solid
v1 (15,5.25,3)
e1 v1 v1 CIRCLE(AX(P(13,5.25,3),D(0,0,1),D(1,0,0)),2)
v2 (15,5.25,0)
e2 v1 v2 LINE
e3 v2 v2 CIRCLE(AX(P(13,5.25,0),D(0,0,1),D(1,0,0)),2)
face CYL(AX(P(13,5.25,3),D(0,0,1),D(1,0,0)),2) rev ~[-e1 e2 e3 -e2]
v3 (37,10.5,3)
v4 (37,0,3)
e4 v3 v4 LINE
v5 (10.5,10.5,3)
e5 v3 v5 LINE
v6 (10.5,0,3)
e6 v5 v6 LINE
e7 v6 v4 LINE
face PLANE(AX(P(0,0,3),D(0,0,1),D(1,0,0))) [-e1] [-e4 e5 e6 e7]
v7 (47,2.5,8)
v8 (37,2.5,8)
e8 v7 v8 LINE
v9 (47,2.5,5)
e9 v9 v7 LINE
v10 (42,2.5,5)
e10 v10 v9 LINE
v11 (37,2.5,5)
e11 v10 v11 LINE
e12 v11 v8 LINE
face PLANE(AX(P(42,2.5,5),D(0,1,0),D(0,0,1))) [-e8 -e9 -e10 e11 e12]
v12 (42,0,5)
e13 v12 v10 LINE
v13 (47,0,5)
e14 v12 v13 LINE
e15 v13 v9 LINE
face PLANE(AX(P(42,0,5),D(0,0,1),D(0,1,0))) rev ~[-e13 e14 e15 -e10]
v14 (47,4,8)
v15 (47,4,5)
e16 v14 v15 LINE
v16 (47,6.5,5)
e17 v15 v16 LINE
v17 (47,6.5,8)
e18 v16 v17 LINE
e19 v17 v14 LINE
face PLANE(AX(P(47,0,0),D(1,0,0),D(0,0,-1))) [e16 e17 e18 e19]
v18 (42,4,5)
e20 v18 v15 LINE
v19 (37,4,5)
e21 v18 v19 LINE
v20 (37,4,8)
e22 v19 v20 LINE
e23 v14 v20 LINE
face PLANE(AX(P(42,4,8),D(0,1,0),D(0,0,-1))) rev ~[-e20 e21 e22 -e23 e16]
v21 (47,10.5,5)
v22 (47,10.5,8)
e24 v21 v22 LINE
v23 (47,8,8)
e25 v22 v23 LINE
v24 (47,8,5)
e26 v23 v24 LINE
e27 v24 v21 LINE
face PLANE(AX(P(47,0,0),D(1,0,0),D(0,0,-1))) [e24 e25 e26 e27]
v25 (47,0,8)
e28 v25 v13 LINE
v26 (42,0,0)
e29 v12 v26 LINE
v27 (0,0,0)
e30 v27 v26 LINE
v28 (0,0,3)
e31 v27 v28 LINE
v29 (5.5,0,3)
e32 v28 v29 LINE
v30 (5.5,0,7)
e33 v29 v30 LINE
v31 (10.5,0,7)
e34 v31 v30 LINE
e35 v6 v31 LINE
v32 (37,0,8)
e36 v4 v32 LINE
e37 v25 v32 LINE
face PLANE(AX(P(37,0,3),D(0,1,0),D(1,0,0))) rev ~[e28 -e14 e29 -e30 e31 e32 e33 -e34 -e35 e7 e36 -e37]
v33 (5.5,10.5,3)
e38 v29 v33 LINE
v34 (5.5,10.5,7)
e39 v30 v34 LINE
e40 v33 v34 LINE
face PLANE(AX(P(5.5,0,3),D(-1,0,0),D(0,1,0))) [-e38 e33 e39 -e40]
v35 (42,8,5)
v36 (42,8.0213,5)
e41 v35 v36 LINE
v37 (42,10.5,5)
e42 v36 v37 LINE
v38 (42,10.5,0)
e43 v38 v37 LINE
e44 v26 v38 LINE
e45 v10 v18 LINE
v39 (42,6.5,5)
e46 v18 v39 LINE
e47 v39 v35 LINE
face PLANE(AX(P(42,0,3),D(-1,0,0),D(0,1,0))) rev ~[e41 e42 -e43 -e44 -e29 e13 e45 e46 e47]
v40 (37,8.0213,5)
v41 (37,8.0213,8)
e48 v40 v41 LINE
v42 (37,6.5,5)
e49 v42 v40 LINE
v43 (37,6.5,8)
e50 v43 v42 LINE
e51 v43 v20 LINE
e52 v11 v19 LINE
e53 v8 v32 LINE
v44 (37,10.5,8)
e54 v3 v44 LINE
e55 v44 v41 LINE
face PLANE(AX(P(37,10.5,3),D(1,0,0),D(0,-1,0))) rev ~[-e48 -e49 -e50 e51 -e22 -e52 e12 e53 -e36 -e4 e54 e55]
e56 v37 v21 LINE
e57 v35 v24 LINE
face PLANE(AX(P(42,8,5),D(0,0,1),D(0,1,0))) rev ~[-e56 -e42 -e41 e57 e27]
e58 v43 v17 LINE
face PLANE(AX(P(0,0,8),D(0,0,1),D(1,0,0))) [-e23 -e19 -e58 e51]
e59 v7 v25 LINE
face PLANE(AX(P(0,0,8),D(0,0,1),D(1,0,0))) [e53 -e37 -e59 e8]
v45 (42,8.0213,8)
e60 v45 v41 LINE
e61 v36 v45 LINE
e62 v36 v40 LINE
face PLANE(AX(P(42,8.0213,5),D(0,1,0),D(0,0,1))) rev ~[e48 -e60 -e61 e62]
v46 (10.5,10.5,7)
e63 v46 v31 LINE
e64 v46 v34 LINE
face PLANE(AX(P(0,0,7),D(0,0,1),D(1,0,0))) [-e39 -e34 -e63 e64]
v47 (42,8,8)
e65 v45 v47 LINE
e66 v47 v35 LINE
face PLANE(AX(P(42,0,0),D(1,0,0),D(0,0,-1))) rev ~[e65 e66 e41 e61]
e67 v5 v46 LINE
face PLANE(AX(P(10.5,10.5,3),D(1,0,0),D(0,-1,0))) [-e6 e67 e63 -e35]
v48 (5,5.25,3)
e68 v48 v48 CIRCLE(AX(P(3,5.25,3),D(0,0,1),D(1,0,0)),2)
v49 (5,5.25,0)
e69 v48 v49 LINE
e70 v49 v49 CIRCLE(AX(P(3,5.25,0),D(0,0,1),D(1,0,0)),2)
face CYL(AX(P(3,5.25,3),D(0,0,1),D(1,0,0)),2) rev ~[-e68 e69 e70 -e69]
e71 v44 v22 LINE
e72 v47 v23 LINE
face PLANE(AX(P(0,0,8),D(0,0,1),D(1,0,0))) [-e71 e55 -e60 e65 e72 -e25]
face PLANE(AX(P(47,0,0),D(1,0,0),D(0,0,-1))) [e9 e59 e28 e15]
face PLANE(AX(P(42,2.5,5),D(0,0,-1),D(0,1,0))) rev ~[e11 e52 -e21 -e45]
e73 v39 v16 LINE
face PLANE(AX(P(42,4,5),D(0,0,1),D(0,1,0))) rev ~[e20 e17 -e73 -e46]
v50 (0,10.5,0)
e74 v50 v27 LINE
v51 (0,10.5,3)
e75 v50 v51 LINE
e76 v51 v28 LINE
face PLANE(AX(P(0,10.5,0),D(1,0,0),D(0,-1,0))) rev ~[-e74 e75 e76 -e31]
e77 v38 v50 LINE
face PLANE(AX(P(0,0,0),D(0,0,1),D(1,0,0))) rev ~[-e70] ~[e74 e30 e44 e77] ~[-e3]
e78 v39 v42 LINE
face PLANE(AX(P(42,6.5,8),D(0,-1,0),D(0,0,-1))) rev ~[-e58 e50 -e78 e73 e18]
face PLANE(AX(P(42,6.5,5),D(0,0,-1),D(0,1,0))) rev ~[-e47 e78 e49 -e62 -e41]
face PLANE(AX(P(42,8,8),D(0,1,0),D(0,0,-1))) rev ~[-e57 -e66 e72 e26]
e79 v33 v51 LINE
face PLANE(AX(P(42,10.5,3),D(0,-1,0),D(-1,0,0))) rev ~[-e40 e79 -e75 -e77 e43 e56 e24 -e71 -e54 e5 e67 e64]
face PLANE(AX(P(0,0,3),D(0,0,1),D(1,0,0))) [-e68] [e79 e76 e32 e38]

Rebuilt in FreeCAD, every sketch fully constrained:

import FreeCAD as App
import Part
import Sketcher
from FreeCAD import Vector
Q = App.Units.Quantity

doc = App.newDocument("Part")
body = doc.addObject("PartDesign::Body", "Body")

# Sketch on XY plane
sketch1 = doc.addObject("Sketcher::SketchObject", "Sketch")
body.addObject(sketch1)
sketch1.AttachmentSupport = (doc.XY_Plane, [""])
sketch1.MapMode = "FlatFace"
sketch1.addGeometry([
    Part.LineSegment(Vector(0, 10, 0), Vector(0, 0, 0)),
    Part.LineSegment(Vector(0, 0, 0), Vector(42, 0, 0)),
    Part.LineSegment(Vector(42, 0, 0), Vector(42, 10, 0)),
    Part.LineSegment(Vector(42, 10, 0), Vector(0, 10, 0)),
], False)
sketch1.addConstraint([
    Sketcher.Constraint("Coincident", 0, 2, 1, 1),
    Sketcher.Constraint("Coincident", 1, 2, 2, 1),
    Sketcher.Constraint("Coincident", 2, 2, 3, 1),
    Sketcher.Constraint("Coincident", 3, 2, 0, 1),
    Sketcher.Constraint("Vertical", 0),
    Sketcher.Constraint("Horizontal", 1),
    Sketcher.Constraint("Vertical", 2),
    Sketcher.Constraint("Horizontal", 3),
    Sketcher.Constraint("Coincident", 0, 2, -1, 1),
    Sketcher.Constraint("DistanceX", 1, 1, 1, 2, Q("42 mm")),
    Sketcher.Constraint("DistanceY", 0, 2, 0, 1, Q("10.5 mm")),
])
pad1 = doc.addObject("PartDesign::Pad", "Pad")
body.addObject(pad1)
pad1.Profile = sketch1
pad1.Length = 3

# Sketch on XY plane
sketch2 = doc.addObject("Sketcher::SketchObject", "Sketch001")
body.addObject(sketch2)
sketch2.AttachmentSupport = (doc.XY_Plane, [""])
sketch2.MapMode = "FlatFace"
sketch2.AttachmentOffset = App.Placement(Vector(0, 0, 3), App.Rotation())
sketch2.addGeometry([
    Part.Circle(Vector(3, 5.2, 0), Vector(0, 0, 1), 2),
    Part.Circle(Vector(13, 5.2, 0), Vector(0, 0, 1), 2),
], False)
sketch2.addConstraint([
    Sketcher.Constraint("Equal", 0, 1),
    Sketcher.Constraint("Horizontal", 0, 3, 1, 3),
    Sketcher.Constraint("Diameter", 0, Q("4 mm")),
    Sketcher.Constraint("DistanceX", -1, 1, 0, 3, Q("3 mm")),
    Sketcher.Constraint("DistanceX", 0, 3, 1, 3, Q("10 mm")),
    Sketcher.Constraint("DistanceY", -1, 1, 0, 3, Q("5.25 mm")),
])
pocket1 = doc.addObject("PartDesign::Pocket", "Pocket")
body.addObject(pocket1)
pocket1.Profile = sketch2
pocket1.Type = "ThroughAll"

# Sketch on XY plane
sketch3 = doc.addObject("Sketcher::SketchObject", "Sketch002")
body.addObject(sketch3)
sketch3.AttachmentSupport = (doc.XY_Plane, [""])
sketch3.MapMode = "FlatFace"
sketch3.AttachmentOffset = App.Placement(Vector(0, 0, 3), App.Rotation())
sketch3.addGeometry([
    Part.LineSegment(Vector(10, 0, 0), Vector(10, 10, 0)),
    Part.LineSegment(Vector(10, 10, 0), Vector(6, 10, 0)),
    Part.LineSegment(Vector(6, 10, 0), Vector(6, 0, 0)),
    Part.LineSegment(Vector(6, 0, 0), Vector(10, 0, 0)),
], False)
sketch3.addConstraint([
    Sketcher.Constraint("Coincident", 0, 2, 1, 1),
    Sketcher.Constraint("Coincident", 1, 2, 2, 1),
    Sketcher.Constraint("Coincident", 2, 2, 3, 1),
    Sketcher.Constraint("Coincident", 3, 2, 0, 1),
    Sketcher.Constraint("Vertical", 0),
    Sketcher.Constraint("Horizontal", 1),
    Sketcher.Constraint("Vertical", 2),
    Sketcher.Constraint("Horizontal", 3),
    Sketcher.Constraint("PointOnObject", 2, 2, -1),
    Sketcher.Constraint("DistanceX", 1, 2, 1, 1, Q("5 mm")),
    Sketcher.Constraint("DistanceY", 0, 1, 0, 2, Q("10.5 mm")),
    Sketcher.Constraint("DistanceX", -1, 1, 0, 2, Q("10.5 mm")),
])
pad2 = doc.addObject("PartDesign::Pad", "Pad001")
body.addObject(pad2)
pad2.Profile = sketch3
pad2.Length = 4

# Sketch on XY plane
sketch4 = doc.addObject("Sketcher::SketchObject", "Sketch003")
body.addObject(sketch4)
sketch4.AttachmentSupport = (doc.XY_Plane, [""])
sketch4.MapMode = "FlatFace"
sketch4.AttachmentOffset = App.Placement(Vector(0, 0, 3), App.Rotation())
sketch4.addGeometry([
    Part.LineSegment(Vector(42, 0, 0), Vector(42, 10, 0)),
    Part.LineSegment(Vector(42, 10, 0), Vector(37, 10, 0)),
    Part.LineSegment(Vector(37, 10, 0), Vector(37, 0, 0)),
    Part.LineSegment(Vector(37, 0, 0), Vector(42, 0, 0)),
], False)
sketch4.addConstraint([
    Sketcher.Constraint("Coincident", 0, 2, 1, 1),
    Sketcher.Constraint("Coincident", 1, 2, 2, 1),
    Sketcher.Constraint("Coincident", 2, 2, 3, 1),
    Sketcher.Constraint("Coincident", 3, 2, 0, 1),
    Sketcher.Constraint("Vertical", 0),
    Sketcher.Constraint("Horizontal", 1),
    Sketcher.Constraint("Vertical", 2),
    Sketcher.Constraint("Horizontal", 3),
    Sketcher.Constraint("PointOnObject", 2, 2, -1),
    Sketcher.Constraint("DistanceX", 1, 2, 1, 1, Q("5 mm")),
    Sketcher.Constraint("DistanceY", 0, 1, 0, 2, Q("10.5 mm")),
    Sketcher.Constraint("DistanceX", -1, 1, 0, 2, Q("42 mm")),
])
pad3 = doc.addObject("PartDesign::Pad", "Pad002")
body.addObject(pad3)
pad3.Profile = sketch4
pad3.Length = 5

# Sketch on YZ plane
sketch5 = doc.addObject("Sketcher::SketchObject", "Sketch004")
body.addObject(sketch5)
sketch5.AttachmentSupport = (doc.YZ_Plane, [""])
sketch5.MapMode = "FlatFace"
sketch5.AttachmentOffset = App.Placement(Vector(0, 0, 42), App.Rotation())
sketch5.addGeometry([
    Part.LineSegment(Vector(10.5, 5, 0), Vector(10.5, 8, 0)),  # 0
    Part.LineSegment(Vector(10.5, 8, 0), Vector(8, 8, 0)),  # 1
    Part.LineSegment(Vector(8, 8, 0), Vector(8, 5, 0)),  # 2
    Part.LineSegment(Vector(8, 5, 0), Vector(10.5, 5, 0)),  # 3
    Part.LineSegment(Vector(2.5, 5, 0), Vector(2.5, 8, 0)),  # 4
    Part.LineSegment(Vector(2.5, 8, 0), Vector(0, 8, 0)),  # 5
    Part.LineSegment(Vector(0, 8, 0), Vector(0, 5, 0)),  # 6
    Part.LineSegment(Vector(0, 5, 0), Vector(2.5, 5, 0)),  # 7
    Part.LineSegment(Vector(6.5, 5, 0), Vector(6.5, 8, 0)),  # 8
    Part.LineSegment(Vector(6.5, 8, 0), Vector(4, 8, 0)),  # 9
    Part.LineSegment(Vector(4, 8, 0), Vector(4, 5, 0)),  # 10
    Part.LineSegment(Vector(4, 5, 0), Vector(6.5, 5, 0)),  # 11
], False)
sketch5.addConstraint([
    Sketcher.Constraint("Coincident", 0, 2, 1, 1),
    Sketcher.Constraint("Coincident", 1, 2, 2, 1),
    Sketcher.Constraint("Coincident", 2, 2, 3, 1),
    Sketcher.Constraint("Coincident", 3, 2, 0, 1),
    Sketcher.Constraint("Coincident", 4, 2, 5, 1),
    Sketcher.Constraint("Coincident", 5, 2, 6, 1),
    Sketcher.Constraint("Coincident", 6, 2, 7, 1),
    Sketcher.Constraint("Coincident", 7, 2, 4, 1),
    Sketcher.Constraint("Coincident", 8, 2, 9, 1),
    Sketcher.Constraint("Coincident", 9, 2, 10, 1),
    Sketcher.Constraint("Coincident", 10, 2, 11, 1),
    Sketcher.Constraint("Coincident", 11, 2, 8, 1),
    Sketcher.Constraint("Vertical", 0),
    Sketcher.Constraint("Horizontal", 1),
    Sketcher.Constraint("Vertical", 2),
    Sketcher.Constraint("Horizontal", 3),
    Sketcher.Constraint("Vertical", 4),
    Sketcher.Constraint("Horizontal", 5),
    Sketcher.Constraint("Vertical", 6),
    Sketcher.Constraint("Horizontal", 7),
    Sketcher.Constraint("Vertical", 8),
    Sketcher.Constraint("Horizontal", 9),
    Sketcher.Constraint("Vertical", 10),
    Sketcher.Constraint("Horizontal", 11),
    Sketcher.Constraint("PointOnObject", 5, 2, -2),
    Sketcher.Constraint("Horizontal", 1, 2, 4, 2),
    Sketcher.Constraint("Horizontal", 3, 2, 6, 2),
    Sketcher.Constraint("Horizontal", 5, 2, 8, 2),
    Sketcher.Constraint("Horizontal", 7, 2, 10, 2),
    Sketcher.Constraint("Equal", 3, 5),
    Sketcher.Constraint("Equal", 7, 9),
    Sketcher.Constraint("DistanceY", 0, 1, 0, 2, Q("3 mm")),
    Sketcher.Constraint("DistanceX", 1, 2, 1, 1, Q("2.5 mm")),
    Sketcher.Constraint("DistanceX", 8, 2, 1, 2, Q("1.5 mm")),
    Sketcher.Constraint("DistanceX", 4, 2, 9, 2, Q("1.5 mm")),
    Sketcher.Constraint("DistanceY", -1, 1, 0, 2, Q("8 mm")),
])
pad4 = doc.addObject("PartDesign::Pad", "Pad003")
body.addObject(pad4)
pad4.Profile = sketch5
pad4.Length = 5

# Sketch on YZ plane
sketch6 = doc.addObject("Sketcher::SketchObject", "Sketch005")
body.addObject(sketch6)
sketch6.AttachmentSupport = (doc.YZ_Plane, [""])
sketch6.MapMode = "FlatFace"
sketch6.AttachmentOffset = App.Placement(Vector(0, 0, 42), App.Rotation())
sketch6.addGeometry([
    Part.LineSegment(Vector(6.5, 8, 0), Vector(6.5, 5, 0)),  # 0
    Part.LineSegment(Vector(6.5, 5, 0), Vector(8, 5, 0)),  # 1
    Part.LineSegment(Vector(8, 5, 0), Vector(8, 8, 0)),  # 2
    Part.LineSegment(Vector(8, 8, 0), Vector(6.5, 8, 0)),  # 3
    Part.LineSegment(Vector(2.5, 8, 0), Vector(2.5, 5, 0)),  # 4
    Part.LineSegment(Vector(2.5, 5, 0), Vector(4, 5, 0)),  # 5
    Part.LineSegment(Vector(4, 5, 0), Vector(4, 8, 0)),  # 6
    Part.LineSegment(Vector(4, 8, 0), Vector(2.5, 8, 0)),  # 7
], False)
sketch6.addConstraint([
    Sketcher.Constraint("Coincident", 0, 2, 1, 1),
    Sketcher.Constraint("Coincident", 1, 2, 2, 1),
    Sketcher.Constraint("Coincident", 2, 2, 3, 1),
    Sketcher.Constraint("Coincident", 3, 2, 0, 1),
    Sketcher.Constraint("Coincident", 4, 2, 5, 1),
    Sketcher.Constraint("Coincident", 5, 2, 6, 1),
    Sketcher.Constraint("Coincident", 6, 2, 7, 1),
    Sketcher.Constraint("Coincident", 7, 2, 4, 1),
    Sketcher.Constraint("Vertical", 0),
    Sketcher.Constraint("Horizontal", 1),
    Sketcher.Constraint("Vertical", 2),
    Sketcher.Constraint("Horizontal", 3),
    Sketcher.Constraint("Vertical", 4),
    Sketcher.Constraint("Horizontal", 5),
    Sketcher.Constraint("Vertical", 6),
    Sketcher.Constraint("Horizontal", 7),
    Sketcher.Constraint("Horizontal", 1, 2, 4, 2),
    Sketcher.Constraint("Horizontal", 3, 2, 6, 2),
    Sketcher.Constraint("DistanceY", 0, 2, 0, 1, Q("3 mm")),
    Sketcher.Constraint("DistanceX", 5, 1, 5, 2, Q("1.5 mm")),
    Sketcher.Constraint("DistanceY", -1, 1, 0, 2, Q("5 mm")),
    Sketcher.Constraint("DistanceX", -1, 1, 5, 2, Q("4 mm")),
    Sketcher.Constraint("DistanceX", 4, 2, 0, 2, Q("4 mm")),
    Sketcher.Constraint("DistanceX", 1, 1, 1, 2, Q("1.5213 mm")),
])
pocket2 = doc.addObject("PartDesign::Pocket", "Pocket001")
body.addObject(pocket2)
pocket2.Profile = sketch6
pocket2.Length = 5

doc.recompute()
